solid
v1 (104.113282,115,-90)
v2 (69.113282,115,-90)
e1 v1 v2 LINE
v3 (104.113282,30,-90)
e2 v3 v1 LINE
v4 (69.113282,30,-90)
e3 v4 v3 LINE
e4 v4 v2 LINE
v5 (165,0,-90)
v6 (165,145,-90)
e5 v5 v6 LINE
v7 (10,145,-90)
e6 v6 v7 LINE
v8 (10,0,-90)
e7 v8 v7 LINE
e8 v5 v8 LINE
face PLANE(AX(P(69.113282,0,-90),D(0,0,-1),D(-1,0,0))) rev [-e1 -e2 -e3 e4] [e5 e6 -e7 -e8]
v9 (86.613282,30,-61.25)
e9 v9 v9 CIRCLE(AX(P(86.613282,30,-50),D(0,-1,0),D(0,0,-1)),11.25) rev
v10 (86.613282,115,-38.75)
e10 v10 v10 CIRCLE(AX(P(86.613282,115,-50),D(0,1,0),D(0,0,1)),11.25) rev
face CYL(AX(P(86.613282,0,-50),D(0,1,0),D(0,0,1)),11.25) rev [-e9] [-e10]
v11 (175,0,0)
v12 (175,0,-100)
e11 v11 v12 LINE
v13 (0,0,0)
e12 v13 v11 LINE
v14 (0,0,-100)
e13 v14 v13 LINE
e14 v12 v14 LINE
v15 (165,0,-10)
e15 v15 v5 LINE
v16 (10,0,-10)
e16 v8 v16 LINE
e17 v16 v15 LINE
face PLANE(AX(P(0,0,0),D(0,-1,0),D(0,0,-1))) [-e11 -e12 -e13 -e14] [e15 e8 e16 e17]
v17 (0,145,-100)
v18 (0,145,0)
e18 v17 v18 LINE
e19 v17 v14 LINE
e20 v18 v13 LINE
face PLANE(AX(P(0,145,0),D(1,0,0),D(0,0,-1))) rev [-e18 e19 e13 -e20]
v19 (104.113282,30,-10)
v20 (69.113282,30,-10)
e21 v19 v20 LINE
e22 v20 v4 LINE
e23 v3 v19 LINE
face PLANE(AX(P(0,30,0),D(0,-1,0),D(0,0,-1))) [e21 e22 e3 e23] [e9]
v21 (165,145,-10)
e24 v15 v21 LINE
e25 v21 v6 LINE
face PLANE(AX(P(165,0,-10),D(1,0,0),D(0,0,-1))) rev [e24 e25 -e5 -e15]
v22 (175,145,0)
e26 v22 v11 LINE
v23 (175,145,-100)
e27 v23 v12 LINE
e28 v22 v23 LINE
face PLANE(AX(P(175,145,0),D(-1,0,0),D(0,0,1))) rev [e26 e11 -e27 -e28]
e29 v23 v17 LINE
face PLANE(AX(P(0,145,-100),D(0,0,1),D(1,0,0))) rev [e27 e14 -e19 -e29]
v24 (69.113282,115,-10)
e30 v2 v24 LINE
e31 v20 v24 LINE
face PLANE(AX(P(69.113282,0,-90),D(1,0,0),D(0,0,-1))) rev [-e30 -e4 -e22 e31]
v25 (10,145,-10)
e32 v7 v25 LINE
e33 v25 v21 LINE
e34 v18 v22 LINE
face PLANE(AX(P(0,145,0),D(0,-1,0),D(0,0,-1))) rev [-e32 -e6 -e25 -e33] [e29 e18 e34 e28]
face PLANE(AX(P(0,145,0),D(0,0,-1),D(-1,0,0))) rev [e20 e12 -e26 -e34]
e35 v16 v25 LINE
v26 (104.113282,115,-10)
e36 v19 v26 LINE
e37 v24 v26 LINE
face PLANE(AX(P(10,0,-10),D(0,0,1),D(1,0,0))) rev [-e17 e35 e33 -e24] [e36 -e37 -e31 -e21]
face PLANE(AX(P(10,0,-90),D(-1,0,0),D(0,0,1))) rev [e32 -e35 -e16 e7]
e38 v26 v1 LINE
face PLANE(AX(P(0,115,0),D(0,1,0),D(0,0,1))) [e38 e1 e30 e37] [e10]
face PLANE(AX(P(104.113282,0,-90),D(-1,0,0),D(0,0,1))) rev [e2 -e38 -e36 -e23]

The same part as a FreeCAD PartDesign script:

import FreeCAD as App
import Part
import Sketcher
from FreeCAD import Vector

doc = App.newDocument("Part")
params = doc.addObject("Spreadsheet::Sheet", "Params")
for row, (alias, value) in enumerate([
    ("sketch1_width", "175 mm"),
    ("sketch1_height", "100 mm"),
    ("pad1_length", "145 mm"),
    ("sketch2_diameter", "22.5 mm"),
    ("sketch2_height", "80 mm"),
    ("pocket1_length", "145 mm"),
    ("sketch3_width", "35 mm"),
    ("sketch3_height", "80 mm"),
    ("pocket2_length", "30 mm"),
    ("sketch4_width", "35 mm"),
    ("sketch4_height", "80 mm"),
    ("pocket3_length", "30 mm"),
], start=1):
    params.set(f"A{row}", alias)
    params.set(f"B{row}", "=" + value)
    params.setAlias(f"B{row}", alias)

body = doc.addObject("PartDesign::Body", "Body")

sketch1 = body.newObject("Sketcher::SketchObject", "Sketch")
sketch1.AttachmentSupport = (doc.getObject("XZ_Plane"), [""])
sketch1.MapMode = "FlatFace"
sketch1.addGeometry([
    Part.LineSegment(Vector(0, -100, 0), Vector(0, 0, 0)),
    Part.LineSegment(Vector(0, 0, 0), Vector(175, 0, 0)),
    Part.LineSegment(Vector(175, 0, 0), Vector(175, -100, 0)),
    Part.LineSegment(Vector(175, -100, 0), Vector(0, -100, 0)),
], False)
sketch1.addConstraint([
    Sketcher.Constraint("Coincident", 0, 2, 1, 1),
    Sketcher.Constraint("Coincident", 1, 2, 2, 1),
    Sketcher.Constraint("Coincident", 2, 2, 3, 1),
    Sketcher.Constraint("Coincident", 3, 2, 0, 1),
    Sketcher.Constraint("Vertical", 0),
    Sketcher.Constraint("Horizontal", 1),
    Sketcher.Constraint("Vertical", 2),
    Sketcher.Constraint("Horizontal", 3),
    Sketcher.Constraint("Coincident", 0, 2, -1, 1),
    Sketcher.Constraint("DistanceX", 1, 1, 1, 2, 175.0),
    Sketcher.Constraint("DistanceY", 0, 1, 0, 2, 100.0),
])
sketch1.setExpression("Constraints[9]", "Params.sketch1_width")
sketch1.setExpression("Constraints[10]", "Params.sketch1_height")
pad1 = body.newObject("PartDesign::Pad", "Pad")
pad1.Profile = sketch1
pad1.setExpression("Length", "Params.pad1_length")
pad1.Reversed = True

sketch2 = body.newObject("Sketcher::SketchObject", "Sketch001")
sketch2.AttachmentSupport = (doc.getObject("XZ_Plane"), [""])
sketch2.MapMode = "FlatFace"
sketch2.AttachmentOffset = App.Placement(Vector(0, 0, -145), App.Rotation())
sketch2.addGeometry([
    Part.Circle(Vector(87, -50, 0), Vector(0, 0, 1), 11),
    Part.LineSegment(Vector(10, -90, 0), Vector(10, -10, 0)),
    Part.LineSegment(Vector(10, -10, 0), Vector(69, -10, 0)),
    Part.LineSegment(Vector(69, -10, 0), Vector(69, -90, 0)),
    Part.LineSegment(Vector(69, -90, 0), Vector(10, -90, 0)),
    Part.LineSegment(Vector(104, -90, 0), Vector(104, -10, 0)),
    Part.LineSegment(Vector(104, -10, 0), Vector(165, -10, 0)),
    Part.LineSegment(Vector(165, -10, 0), Vector(165, -90, 0)),
    Part.LineSegment(Vector(165, -90, 0), Vector(104, -90, 0)),
], False)
sketch2.addConstraint([
    Sketcher.Constraint("Coincident", 1, 2, 2, 1),
    Sketcher.Constraint("Coincident", 2, 2, 3, 1),
    Sketcher.Constraint("Coincident", 3, 2, 4, 1),
    Sketcher.Constraint("Coincident", 4, 2, 1, 1),
    Sketcher.Constraint("Coincident", 5, 2, 6, 1),
    Sketcher.Constraint("Coincident", 6, 2, 7, 1),
    Sketcher.Constraint("Coincident", 7, 2, 8, 1),
    Sketcher.Constraint("Coincident", 8, 2, 5, 1),
    Sketcher.Constraint("Vertical", 1),
    Sketcher.Constraint("Horizontal", 2),
    Sketcher.Constraint("Vertical", 3),
    Sketcher.Constraint("Horizontal", 4),
    Sketcher.Constraint("Vertical", 5),
    Sketcher.Constraint("Horizontal", 6),
    Sketcher.Constraint("Vertical", 7),
    Sketcher.Constraint("Horizontal", 8),
    Sketcher.Constraint("Horizontal", 2, 2, 5, 2),
    Sketcher.Constraint("Horizontal", 4, 2, 7, 2),
    Sketcher.Constraint("Diameter", 0, 22.5),
    Sketcher.Constraint("DistanceY", 1, 1, 1, 2, 80.0),
    Sketcher.Constraint("DistanceY", 0, 3, -1, 1, 50.0),
    Sketcher.Constraint("DistanceX", -1, 1, 1, 2, 10.0),
    Sketcher.Constraint("DistanceY", 1, 2, -1, 1, 10.0),
    Sketcher.Constraint("DistanceX", -1, 1, 6, 2, 165.0),
    Sketcher.Constraint("DistanceX", 2, 2, 5, 2, 35.0),
    Sketcher.Constraint("DistanceX", 2, 2, 0, 3, 17.5),
    Sketcher.Constraint("DistanceX", 2, 1, 2, 2, 59.113282),
])
sketch2.setExpression("Constraints[18]", "Params.sketch2_diameter")
sketch2.setExpression("Constraints[19]", "Params.sketch2_height")
pocket1 = body.newObject("PartDesign::Pocket", "Pocket")
pocket1.Profile = sketch2
pocket1.setExpression("Length", "Params.pocket1_length")
pocket1.Reversed = True

sketch3 = body.newObject("Sketcher::SketchObject", "Sketch002")
sketch3.AttachmentSupport = (doc.getObject("XZ_Plane"), [""])
sketch3.MapMode = "FlatFace"
sketch3.AttachmentOffset = App.Placement(Vector(0, 0, -145), App.Rotation())
sketch3.addGeometry([
    Part.LineSegment(Vector(69, -90, 0), Vector(69, -10, 0)),
    Part.LineSegment(Vector(69, -10, 0), Vector(104, -10, 0)),
    Part.LineSegment(Vector(104, -10, 0), Vector(104, -90, 0)),
    Part.LineSegment(Vector(104, -90, 0), Vector(69, -90, 0)),
], False)
sketch3.addConstraint([
    Sketcher.Constraint("Coincident", 0, 2, 1, 1),
    Sketcher.Constraint("Coincident", 1, 2, 2, 1),
    Sketcher.Constraint("Coincident", 2, 2, 3, 1),
    Sketcher.Constraint("Coincident", 3, 2, 0, 1),
    Sketcher.Constraint("Vertical", 0),
    Sketcher.Constraint("Horizontal", 1),
    Sketcher.Constraint("Vertical", 2),
    Sketcher.Constraint("Horizontal", 3),
    Sketcher.Constraint("DistanceX", 1, 1, 1, 2, 35.0),
    Sketcher.Constraint("DistanceY", 0, 1, 0, 2, 80.0),
    Sketcher.Constraint("DistanceY", 0, 2, -1, 1, 10.0),
    Sketcher.Constraint("DistanceX", -1, 1, 0, 2, 69.113282),
])
sketch3.setExpression("Constraints[8]", "Params.sketch3_width")
sketch3.setExpression("Constraints[9]", "Params.sketch3_height")
pocket2 = body.newObject("PartDesign::Pocket", "Pocket001")
pocket2.Profile = sketch3
pocket2.setExpression("Length", "Params.pocket2_length")
pocket2.Reversed = True

sketch4 = body.newObject("Sketcher::SketchObject", "Sketch003")
sketch4.AttachmentSupport = (doc.getObject("XZ_Plane"), [""])
sketch4.MapMode = "FlatFace"
sketch4.addGeometry([
    Part.LineSegment(Vector(69, -10, 0), Vector(69, -90, 0)),
    Part.LineSegment(Vector(69, -90, 0), Vector(104, -90, 0)),
    Part.LineSegment(Vector(104, -90, 0), Vector(104, -10, 0)),
    Part.LineSegment(Vector(104, -10, 0), Vector(69, -10, 0)),
], False)
sketch4.addConstraint([
    Sketcher.Constraint("Coincident", 0, 2, 1, 1),
    Sketcher.Constraint("Coincident", 1, 2, 2, 1),
    Sketcher.Constraint("Coincident", 2, 2, 3, 1),
    Sketcher.Constraint("Coincident", 3, 2, 0, 1),
    Sketcher.Constraint("Vertical", 0),
    Sketcher.Constraint("Horizontal", 1),
    Sketcher.Constraint("Vertical", 2),
    Sketcher.Constraint("Horizontal", 3),
    Sketcher.Constraint("DistanceX", 1, 1, 1, 2, 35.0),
    Sketcher.Constraint("DistanceY", 0, 2, 0, 1, 80.0),
    Sketcher.Constraint("DistanceY", 0, 2, -1, 1, 90.0),
    Sketcher.Constraint("DistanceX", -1, 1, 0, 2, 69.113282),
])
sketch4.setExpression("Constraints[8]", "Params.sketch4_width")
sketch4.setExpression("Constraints[9]", "Params.sketch4_height")
pocket3 = body.newObject("PartDesign::Pocket", "Pocket002")
pocket3.Profile = sketch4
pocket3.setExpression("Length", "Params.pocket3_length")

doc.recompute()
